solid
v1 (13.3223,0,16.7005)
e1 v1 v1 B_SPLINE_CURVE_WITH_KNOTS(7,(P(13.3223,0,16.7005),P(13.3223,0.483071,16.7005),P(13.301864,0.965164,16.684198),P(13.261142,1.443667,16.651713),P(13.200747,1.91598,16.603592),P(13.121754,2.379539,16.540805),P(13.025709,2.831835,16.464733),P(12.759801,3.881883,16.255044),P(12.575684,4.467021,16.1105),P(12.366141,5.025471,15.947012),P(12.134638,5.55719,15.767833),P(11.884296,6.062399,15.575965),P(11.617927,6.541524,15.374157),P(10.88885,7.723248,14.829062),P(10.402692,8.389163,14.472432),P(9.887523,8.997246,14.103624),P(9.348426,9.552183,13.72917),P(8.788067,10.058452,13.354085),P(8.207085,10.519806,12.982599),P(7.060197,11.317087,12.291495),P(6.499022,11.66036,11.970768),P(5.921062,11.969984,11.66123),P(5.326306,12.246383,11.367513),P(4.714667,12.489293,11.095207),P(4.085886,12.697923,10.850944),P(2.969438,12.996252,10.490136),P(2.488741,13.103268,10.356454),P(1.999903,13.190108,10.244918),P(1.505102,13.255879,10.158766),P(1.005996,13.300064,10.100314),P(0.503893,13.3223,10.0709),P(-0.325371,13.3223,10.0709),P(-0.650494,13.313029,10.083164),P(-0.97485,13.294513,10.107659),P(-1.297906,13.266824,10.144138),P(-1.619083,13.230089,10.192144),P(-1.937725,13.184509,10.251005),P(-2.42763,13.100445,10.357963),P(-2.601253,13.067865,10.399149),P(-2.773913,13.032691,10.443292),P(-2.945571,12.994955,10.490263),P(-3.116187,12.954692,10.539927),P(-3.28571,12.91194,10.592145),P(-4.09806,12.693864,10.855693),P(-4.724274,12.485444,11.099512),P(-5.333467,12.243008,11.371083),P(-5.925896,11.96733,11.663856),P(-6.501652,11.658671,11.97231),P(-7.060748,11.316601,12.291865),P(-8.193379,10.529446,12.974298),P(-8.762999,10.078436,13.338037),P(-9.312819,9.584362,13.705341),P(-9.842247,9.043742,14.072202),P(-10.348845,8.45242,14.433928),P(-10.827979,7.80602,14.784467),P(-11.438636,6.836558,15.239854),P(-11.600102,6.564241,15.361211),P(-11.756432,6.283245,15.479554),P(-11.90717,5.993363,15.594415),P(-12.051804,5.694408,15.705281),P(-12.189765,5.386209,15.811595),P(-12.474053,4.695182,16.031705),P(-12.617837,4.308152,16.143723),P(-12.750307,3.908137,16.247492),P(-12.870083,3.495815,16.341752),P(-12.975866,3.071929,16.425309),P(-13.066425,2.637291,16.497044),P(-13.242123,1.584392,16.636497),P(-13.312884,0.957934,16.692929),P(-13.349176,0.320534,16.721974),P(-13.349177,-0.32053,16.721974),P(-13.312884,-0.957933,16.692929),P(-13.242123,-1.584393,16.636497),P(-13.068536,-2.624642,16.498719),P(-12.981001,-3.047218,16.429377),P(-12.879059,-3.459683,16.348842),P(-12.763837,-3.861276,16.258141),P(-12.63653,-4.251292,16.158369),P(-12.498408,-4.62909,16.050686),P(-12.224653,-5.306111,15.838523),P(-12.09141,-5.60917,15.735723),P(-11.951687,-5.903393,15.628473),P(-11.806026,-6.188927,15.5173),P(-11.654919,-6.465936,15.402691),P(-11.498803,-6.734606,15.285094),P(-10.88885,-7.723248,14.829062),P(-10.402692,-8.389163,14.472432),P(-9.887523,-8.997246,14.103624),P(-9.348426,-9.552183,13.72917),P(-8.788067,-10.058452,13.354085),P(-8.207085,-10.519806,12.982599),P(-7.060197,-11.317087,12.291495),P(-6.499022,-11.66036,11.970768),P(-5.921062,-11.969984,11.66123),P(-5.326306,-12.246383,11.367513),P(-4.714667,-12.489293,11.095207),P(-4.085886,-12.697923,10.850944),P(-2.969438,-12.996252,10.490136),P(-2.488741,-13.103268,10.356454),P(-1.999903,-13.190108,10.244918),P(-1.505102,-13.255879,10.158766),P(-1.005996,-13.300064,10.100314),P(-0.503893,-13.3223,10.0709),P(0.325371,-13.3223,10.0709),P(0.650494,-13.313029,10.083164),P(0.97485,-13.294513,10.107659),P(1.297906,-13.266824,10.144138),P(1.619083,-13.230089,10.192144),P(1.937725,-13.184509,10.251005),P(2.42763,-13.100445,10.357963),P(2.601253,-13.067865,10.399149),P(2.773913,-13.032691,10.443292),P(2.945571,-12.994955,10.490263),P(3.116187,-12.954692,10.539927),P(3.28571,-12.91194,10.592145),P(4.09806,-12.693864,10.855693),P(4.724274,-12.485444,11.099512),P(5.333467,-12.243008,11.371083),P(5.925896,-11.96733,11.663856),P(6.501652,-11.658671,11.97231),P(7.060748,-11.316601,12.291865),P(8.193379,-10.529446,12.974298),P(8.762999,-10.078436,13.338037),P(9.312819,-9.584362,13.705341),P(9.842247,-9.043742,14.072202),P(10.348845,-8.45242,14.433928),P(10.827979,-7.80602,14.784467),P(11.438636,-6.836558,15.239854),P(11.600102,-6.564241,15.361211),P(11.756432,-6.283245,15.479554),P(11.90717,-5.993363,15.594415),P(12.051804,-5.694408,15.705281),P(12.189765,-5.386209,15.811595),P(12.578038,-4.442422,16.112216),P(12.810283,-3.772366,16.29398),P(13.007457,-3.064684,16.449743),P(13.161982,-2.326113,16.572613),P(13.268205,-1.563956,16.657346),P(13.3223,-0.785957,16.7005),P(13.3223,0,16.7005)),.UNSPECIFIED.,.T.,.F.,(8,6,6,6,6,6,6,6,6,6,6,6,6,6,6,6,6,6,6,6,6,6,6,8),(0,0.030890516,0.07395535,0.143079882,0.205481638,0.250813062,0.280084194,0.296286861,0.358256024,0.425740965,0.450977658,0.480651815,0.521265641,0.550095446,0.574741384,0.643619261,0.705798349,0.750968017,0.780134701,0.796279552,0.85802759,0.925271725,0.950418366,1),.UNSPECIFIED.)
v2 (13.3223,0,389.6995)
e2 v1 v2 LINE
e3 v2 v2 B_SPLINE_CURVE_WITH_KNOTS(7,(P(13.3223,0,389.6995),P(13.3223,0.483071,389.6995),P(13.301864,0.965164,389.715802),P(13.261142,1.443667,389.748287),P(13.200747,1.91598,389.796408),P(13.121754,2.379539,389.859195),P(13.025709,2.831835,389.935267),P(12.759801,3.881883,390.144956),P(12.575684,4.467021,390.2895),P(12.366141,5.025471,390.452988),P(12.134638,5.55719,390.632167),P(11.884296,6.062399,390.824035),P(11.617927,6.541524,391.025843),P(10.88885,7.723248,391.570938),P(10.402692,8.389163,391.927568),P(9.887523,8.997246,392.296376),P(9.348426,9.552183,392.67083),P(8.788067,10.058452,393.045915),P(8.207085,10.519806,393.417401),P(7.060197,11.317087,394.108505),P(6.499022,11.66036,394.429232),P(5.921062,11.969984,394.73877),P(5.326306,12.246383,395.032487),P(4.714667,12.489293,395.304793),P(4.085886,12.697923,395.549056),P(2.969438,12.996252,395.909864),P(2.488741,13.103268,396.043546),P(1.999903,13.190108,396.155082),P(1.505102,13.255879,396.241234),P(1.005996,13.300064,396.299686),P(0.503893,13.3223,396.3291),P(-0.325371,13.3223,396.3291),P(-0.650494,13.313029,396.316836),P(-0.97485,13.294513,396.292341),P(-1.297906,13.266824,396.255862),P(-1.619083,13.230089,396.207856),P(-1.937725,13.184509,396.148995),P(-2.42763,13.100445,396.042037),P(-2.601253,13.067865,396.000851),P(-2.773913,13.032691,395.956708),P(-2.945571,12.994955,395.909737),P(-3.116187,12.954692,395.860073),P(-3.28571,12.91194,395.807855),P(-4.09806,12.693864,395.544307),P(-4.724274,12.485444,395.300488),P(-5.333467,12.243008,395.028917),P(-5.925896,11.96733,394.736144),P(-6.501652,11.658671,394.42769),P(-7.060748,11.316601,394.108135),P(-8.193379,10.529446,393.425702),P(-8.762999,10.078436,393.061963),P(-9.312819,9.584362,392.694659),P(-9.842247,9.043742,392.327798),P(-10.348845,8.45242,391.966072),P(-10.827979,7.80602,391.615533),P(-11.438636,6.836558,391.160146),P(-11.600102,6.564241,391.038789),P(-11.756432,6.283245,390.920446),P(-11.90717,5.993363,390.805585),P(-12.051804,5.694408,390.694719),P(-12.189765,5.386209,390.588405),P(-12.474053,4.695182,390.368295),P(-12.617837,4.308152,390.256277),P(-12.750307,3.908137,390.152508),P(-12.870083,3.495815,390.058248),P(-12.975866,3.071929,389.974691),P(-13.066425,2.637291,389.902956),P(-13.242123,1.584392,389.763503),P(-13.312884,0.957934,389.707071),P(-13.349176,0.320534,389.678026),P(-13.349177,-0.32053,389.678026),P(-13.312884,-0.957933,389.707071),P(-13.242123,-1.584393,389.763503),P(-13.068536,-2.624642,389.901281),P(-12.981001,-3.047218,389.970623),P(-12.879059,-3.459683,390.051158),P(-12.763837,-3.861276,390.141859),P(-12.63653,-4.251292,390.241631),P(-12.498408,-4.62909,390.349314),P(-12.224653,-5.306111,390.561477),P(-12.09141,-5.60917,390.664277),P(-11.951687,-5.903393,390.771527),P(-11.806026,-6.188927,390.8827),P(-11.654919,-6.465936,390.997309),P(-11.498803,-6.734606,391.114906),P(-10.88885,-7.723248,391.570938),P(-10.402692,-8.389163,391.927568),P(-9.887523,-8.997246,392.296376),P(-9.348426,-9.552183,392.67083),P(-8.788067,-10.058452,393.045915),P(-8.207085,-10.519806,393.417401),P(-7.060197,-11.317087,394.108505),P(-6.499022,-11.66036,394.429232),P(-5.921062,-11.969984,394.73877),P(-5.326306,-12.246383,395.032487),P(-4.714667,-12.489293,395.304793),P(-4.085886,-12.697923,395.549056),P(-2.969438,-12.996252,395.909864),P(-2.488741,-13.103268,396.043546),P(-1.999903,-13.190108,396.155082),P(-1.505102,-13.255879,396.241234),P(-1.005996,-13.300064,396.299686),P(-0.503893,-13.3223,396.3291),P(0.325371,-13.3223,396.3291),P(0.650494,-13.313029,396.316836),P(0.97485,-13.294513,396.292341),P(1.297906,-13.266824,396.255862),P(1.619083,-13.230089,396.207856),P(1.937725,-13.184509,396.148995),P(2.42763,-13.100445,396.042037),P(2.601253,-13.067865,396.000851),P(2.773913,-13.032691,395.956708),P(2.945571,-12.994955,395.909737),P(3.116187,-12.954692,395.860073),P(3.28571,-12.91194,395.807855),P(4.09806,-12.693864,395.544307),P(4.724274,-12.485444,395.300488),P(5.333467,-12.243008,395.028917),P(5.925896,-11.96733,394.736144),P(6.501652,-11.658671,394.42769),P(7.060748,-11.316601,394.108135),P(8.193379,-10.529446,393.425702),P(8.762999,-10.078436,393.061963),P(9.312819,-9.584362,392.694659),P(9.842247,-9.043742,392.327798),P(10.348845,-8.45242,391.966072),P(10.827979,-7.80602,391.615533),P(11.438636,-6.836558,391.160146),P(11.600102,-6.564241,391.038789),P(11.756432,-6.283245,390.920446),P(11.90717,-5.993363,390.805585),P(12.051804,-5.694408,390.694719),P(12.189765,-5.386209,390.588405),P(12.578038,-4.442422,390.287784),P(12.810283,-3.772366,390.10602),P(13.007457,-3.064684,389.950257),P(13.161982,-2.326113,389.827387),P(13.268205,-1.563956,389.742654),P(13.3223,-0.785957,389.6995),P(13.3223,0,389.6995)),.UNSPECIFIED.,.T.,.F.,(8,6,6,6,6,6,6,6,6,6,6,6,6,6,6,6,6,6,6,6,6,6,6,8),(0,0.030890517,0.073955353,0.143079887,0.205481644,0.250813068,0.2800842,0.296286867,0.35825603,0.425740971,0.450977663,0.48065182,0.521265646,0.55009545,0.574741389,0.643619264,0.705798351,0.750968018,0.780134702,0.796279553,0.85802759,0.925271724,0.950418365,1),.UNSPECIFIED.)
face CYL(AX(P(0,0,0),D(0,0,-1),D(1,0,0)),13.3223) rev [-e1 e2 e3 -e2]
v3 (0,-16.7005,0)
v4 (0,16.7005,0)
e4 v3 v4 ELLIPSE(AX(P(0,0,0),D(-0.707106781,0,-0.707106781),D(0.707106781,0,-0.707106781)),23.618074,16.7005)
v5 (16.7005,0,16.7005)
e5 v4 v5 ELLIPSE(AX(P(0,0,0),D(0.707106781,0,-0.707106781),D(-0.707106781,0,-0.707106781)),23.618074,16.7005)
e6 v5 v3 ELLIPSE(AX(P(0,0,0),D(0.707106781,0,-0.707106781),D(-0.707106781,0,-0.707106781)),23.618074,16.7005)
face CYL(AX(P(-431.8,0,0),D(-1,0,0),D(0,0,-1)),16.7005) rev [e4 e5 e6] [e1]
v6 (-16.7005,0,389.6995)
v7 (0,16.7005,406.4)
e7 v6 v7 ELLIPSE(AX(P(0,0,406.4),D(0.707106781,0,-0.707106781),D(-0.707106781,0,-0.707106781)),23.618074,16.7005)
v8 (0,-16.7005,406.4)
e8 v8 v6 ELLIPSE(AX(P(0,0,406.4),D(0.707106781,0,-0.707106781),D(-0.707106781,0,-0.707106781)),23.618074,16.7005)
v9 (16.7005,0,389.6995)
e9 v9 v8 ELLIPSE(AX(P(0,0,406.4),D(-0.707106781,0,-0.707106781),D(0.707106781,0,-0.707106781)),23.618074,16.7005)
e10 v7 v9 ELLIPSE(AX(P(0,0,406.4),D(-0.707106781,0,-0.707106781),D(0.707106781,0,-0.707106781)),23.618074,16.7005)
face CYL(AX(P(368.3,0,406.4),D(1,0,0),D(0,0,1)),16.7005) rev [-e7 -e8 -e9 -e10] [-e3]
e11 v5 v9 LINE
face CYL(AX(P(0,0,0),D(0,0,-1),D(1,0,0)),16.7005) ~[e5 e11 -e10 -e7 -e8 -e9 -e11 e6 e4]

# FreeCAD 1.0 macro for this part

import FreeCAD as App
import Part
import Sketcher
from FreeCAD import Vector
Q = App.Units.Quantity

doc = App.newDocument("Part")
body = doc.addObject("PartDesign::Body", "Body")

# Sketch on XY plane
sketch1 = body.newObject("Sketcher::SketchObject", "Sketch")
sketch1.AttachmentSupport = (doc.getObject("XY_Plane"), [""])
sketch1.MapMode = "FlatFace"
sketch1.addGeometry([
    Part.Circle(Vector(0, 0, 0), Vector(0, 0, 1), 16.7005),
    Part.Circle(Vector(0, 0, 0), Vector(0, 0, 1), 13.3223),
], False)
sketch1.addConstraint([
    Sketcher.Constraint("Coincident", 0, 3, -1, 1),
    Sketcher.Constraint("Coincident", 1, 3, -1, 1),
    Sketcher.Constraint("Diameter", 0, Q("1.315 in")),
    Sketcher.Constraint("Diameter", 1, Q("1.049 in")),
])
pad1 = body.newObject("PartDesign::Pad", "Pad")
pad1.Profile = sketch1
pad1.Length = Q("16 in")

# Sketch on YZ plane
sketch2 = body.newObject("Sketcher::SketchObject", "Sketch001")
sketch2.AttachmentSupport = (doc.getObject("YZ_Plane"), [""])
sketch2.MapMode = "FlatFace"
sketch2.AttachmentOffset = App.Placement(Vector(0, 0, -17 * 25.4), App.Rotation())
sketch2.addGeometry(Part.Circle(Vector(0, 0, 0), Vector(0, 0, 1), 16.7005), False)
sketch2.addConstraint([
    Sketcher.Constraint("Coincident", 0, 3, -1, 1),
    Sketcher.Constraint("Diameter", 0, Q("1.315 in")),
])
pocket1 = body.newObject("PartDesign::Pocket", "Pocket")
pocket1.Profile = sketch2
pocket1.Length = Q("31.5 in")
pocket1.Reversed = True

# Sketch on YZ plane
sketch3 = body.newObject("Sketcher::SketchObject", "Sketch002")
sketch3.AttachmentSupport = (doc.getObject("YZ_Plane"), [""])
sketch3.MapMode = "FlatFace"
sketch3.AttachmentOffset = App.Placement(Vector(0, 0, 14.5 * 25.4), App.Rotation())
sketch3.addGeometry(Part.Circle(Vector(0, 406.4, 0), Vector(0, 0, 1), 16.7005), False)
sketch3.addConstraint([
    Sketcher.Constraint("PointOnObject", 0, 3, -2),
    Sketcher.Constraint("Diameter", 0, Q("1.315 in")),
    Sketcher.Constraint("DistanceY", -1, 1, 0, 3, Q("16 in")),
])
pocket2 = body.newObject("PartDesign::Pocket", "Pocket001")
pocket2.Profile = sketch3
pocket2.Length = Q("31.5 in")

doc.recompute()
